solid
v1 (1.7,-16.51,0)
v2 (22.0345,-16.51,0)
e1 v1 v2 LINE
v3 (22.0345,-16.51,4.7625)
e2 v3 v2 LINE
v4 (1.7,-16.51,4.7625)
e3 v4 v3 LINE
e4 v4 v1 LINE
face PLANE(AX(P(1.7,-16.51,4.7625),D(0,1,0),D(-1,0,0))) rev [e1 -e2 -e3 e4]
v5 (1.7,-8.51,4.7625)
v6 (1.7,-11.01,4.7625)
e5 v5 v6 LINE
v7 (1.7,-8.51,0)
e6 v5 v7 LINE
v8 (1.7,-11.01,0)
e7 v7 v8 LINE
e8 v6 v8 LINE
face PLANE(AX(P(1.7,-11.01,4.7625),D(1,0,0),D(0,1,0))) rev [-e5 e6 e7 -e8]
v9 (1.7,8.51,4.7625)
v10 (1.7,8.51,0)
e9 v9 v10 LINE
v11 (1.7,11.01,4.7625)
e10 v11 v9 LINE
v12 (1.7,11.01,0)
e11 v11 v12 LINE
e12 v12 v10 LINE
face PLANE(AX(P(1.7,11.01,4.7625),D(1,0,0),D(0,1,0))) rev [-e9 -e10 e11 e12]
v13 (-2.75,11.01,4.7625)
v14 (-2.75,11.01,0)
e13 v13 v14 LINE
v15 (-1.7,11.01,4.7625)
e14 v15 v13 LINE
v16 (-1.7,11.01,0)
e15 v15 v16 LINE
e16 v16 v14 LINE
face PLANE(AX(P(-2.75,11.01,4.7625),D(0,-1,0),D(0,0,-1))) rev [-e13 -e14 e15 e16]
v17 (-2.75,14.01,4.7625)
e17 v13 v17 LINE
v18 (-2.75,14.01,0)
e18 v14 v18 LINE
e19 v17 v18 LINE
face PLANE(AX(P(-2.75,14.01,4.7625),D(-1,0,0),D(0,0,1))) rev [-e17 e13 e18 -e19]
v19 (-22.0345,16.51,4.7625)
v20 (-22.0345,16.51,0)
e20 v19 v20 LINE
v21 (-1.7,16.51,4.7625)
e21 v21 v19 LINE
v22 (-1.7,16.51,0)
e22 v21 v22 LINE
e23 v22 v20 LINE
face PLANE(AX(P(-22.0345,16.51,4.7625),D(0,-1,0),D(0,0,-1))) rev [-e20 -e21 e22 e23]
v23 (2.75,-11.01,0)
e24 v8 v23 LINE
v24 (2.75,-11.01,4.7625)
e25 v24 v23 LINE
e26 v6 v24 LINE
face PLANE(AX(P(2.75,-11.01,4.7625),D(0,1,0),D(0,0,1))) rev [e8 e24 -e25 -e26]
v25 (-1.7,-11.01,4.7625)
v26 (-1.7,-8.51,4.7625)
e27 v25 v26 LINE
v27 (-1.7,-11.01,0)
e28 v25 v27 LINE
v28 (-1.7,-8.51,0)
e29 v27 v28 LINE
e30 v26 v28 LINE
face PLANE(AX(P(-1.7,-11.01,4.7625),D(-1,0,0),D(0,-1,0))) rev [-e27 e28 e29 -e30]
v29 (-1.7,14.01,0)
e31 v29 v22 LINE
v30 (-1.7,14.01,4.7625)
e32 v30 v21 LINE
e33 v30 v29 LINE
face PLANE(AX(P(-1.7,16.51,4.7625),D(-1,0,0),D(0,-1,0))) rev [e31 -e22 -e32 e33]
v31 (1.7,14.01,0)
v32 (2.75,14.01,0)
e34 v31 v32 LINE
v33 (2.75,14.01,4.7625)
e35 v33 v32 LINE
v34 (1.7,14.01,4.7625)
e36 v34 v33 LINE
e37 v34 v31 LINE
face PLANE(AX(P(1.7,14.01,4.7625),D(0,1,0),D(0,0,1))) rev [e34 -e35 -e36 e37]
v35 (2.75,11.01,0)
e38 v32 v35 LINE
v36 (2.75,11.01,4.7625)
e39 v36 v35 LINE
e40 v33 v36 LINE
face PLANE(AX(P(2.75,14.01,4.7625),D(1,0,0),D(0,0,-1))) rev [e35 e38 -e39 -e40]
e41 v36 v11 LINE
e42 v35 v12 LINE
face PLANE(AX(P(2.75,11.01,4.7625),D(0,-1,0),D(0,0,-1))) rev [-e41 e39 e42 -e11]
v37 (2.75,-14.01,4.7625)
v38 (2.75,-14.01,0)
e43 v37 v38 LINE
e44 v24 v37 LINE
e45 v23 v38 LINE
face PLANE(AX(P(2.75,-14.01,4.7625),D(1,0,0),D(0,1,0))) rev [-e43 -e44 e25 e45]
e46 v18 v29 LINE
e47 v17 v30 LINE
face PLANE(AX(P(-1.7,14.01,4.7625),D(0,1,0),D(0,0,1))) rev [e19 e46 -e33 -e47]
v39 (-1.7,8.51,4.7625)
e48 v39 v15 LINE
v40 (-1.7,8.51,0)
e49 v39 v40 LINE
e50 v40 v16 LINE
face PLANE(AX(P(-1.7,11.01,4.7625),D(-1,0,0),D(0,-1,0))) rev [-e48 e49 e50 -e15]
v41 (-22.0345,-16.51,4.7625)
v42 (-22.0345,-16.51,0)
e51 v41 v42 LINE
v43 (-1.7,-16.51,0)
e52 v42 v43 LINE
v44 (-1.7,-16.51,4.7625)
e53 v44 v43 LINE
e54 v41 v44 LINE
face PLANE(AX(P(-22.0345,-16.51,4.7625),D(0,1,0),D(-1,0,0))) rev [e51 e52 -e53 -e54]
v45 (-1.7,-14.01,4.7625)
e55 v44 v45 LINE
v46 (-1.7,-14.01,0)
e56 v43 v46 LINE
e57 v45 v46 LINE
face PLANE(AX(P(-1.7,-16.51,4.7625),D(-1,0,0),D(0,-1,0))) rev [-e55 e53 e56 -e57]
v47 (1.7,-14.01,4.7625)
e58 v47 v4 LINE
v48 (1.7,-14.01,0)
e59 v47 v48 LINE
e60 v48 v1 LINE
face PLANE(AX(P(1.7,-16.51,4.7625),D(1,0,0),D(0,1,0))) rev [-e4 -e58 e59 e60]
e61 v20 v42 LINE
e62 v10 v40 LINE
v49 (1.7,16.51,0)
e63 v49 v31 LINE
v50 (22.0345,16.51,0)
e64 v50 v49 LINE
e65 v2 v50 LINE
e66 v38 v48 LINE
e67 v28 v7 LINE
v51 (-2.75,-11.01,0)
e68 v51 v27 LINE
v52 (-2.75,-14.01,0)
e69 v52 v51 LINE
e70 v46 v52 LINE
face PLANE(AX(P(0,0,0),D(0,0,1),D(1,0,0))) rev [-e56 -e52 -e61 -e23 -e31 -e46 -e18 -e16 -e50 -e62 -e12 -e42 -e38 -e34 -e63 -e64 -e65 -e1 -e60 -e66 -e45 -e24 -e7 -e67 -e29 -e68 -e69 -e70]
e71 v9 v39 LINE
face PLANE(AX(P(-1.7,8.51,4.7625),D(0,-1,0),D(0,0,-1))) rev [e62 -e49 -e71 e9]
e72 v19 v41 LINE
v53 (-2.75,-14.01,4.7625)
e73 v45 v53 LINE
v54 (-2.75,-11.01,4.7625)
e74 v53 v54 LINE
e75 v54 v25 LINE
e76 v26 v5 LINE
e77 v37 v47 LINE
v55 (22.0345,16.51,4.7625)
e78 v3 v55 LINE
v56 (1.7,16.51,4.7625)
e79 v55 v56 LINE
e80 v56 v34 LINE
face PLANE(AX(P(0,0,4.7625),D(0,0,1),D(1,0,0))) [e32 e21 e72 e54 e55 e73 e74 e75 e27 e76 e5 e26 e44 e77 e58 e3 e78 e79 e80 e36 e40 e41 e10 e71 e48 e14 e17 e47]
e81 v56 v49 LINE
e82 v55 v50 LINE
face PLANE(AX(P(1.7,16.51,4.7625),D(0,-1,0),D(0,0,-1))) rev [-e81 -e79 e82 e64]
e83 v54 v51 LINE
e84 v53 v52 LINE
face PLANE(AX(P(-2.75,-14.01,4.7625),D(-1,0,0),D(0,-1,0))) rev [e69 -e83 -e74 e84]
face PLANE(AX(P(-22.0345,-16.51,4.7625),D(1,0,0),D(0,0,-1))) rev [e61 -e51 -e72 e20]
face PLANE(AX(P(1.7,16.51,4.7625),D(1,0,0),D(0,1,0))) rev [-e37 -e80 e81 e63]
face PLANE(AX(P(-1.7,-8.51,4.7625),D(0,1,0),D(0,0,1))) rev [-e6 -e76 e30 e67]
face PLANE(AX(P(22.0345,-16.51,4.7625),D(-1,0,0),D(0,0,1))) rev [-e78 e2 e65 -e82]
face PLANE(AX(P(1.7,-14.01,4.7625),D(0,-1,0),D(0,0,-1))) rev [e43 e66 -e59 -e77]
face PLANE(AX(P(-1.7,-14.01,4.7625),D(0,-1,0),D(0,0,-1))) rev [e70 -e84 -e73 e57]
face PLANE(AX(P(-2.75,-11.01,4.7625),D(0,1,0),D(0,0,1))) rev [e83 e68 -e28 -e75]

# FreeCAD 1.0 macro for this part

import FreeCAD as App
import Part
import Sketcher

V = App.Vector


def add_polygon(sketch, points):
    """Adds a closed chain of lines whose ends are joined by coincident constraints."""
    first, n = sketch.GeometryCount, len(points)
    for a, b in zip(points, points[1:] + points[:1]):
        sketch.addGeometry(Part.LineSegment(App.Vector(*a, 0), App.Vector(*b, 0)), False)
    for i in range(n):
        sketch.addConstraint(Sketcher.Constraint("Coincident", first + i, 2, first + (i + 1) % n, 1))

doc = App.newDocument("Part")
body = doc.addObject("PartDesign::Body", "Body")

# Sketch on XY plane
sketch1 = doc.addObject("Sketcher::SketchObject", "Sketch")
body.addObject(sketch1)
sketch1.AttachmentSupport = (doc.XY_Plane, [""])
sketch1.MapMode = "FlatFace"
add_polygon(sketch1, [(-22, -16.5), (-1.7, -16.5), (-1.7, -14), (-2.8, -14), (-2.8, -11), (-1.7, -11), (-1.7, -8.5), (1.7, -8.5), (1.7, -11), (2.8, -11), (2.8, -14), (1.7, -14), (1.7, -16.5), (22, -16.5), (22, 16.5), (1.7, 16.5), (1.7, 14), (2.8, 14), (2.8, 11), (1.7, 11), (1.7, 8.5), (-1.7, 8.5), (-1.7, 11), (-2.8, 11), (-2.8, 14), (-1.7, 14), (-1.7, 16.5), (-22, 16.5)])  # lines 0-27
sketch1.addConstraint(Sketcher.Constraint("Horizontal", 0))
sketch1.addConstraint(Sketcher.Constraint("Vertical", 1))
sketch1.addConstraint(Sketcher.Constraint("Horizontal", 2))
sketch1.addConstraint(Sketcher.Constraint("Vertical", 3))
sketch1.addConstraint(Sketcher.Constraint("Horizontal", 4))
sketch1.addConstraint(Sketcher.Constraint("Vertical", 5))
sketch1.addConstraint(Sketcher.Constraint("Horizontal", 6))
sketch1.addConstraint(Sketcher.Constraint("Vertical", 7))
sketch1.addConstraint(Sketcher.Constraint("Horizontal", 8))
sketch1.addConstraint(Sketcher.Constraint("Vertical", 9))
sketch1.addConstraint(Sketcher.Constraint("Horizontal", 10))
sketch1.addConstraint(Sketcher.Constraint("Vertical", 11))
sketch1.addConstraint(Sketcher.Constraint("Horizontal", 12))
sketch1.addConstraint(Sketcher.Constraint("Vertical", 13))
sketch1.addConstraint(Sketcher.Constraint("Horizontal", 14))
sketch1.addConstraint(Sketcher.Constraint("Vertical", 15))
sketch1.addConstraint(Sketcher.Constraint("Horizontal", 16))
sketch1.addConstraint(Sketcher.Constraint("Vertical", 17))
sketch1.addConstraint(Sketcher.Constraint("Horizontal", 18))
sketch1.addConstraint(Sketcher.Constraint("Vertical", 19))
sketch1.addConstraint(Sketcher.Constraint("Horizontal", 20))
sketch1.addConstraint(Sketcher.Constraint("Vertical", 21))
sketch1.addConstraint(Sketcher.Constraint("Horizontal", 22))
sketch1.addConstraint(Sketcher.Constraint("Vertical", 23))
sketch1.addConstraint(Sketcher.Constraint("Horizontal", 24))
sketch1.addConstraint(Sketcher.Constraint("Vertical", 25))
sketch1.addConstraint(Sketcher.Constraint("Horizontal", 26))
sketch1.addConstraint(Sketcher.Constraint("Vertical", 27))
sketch1.addConstraint(Sketcher.Constraint("Symmetric", 0, 2, 14, 2, -1, 1))
sketch1.addConstraint(Sketcher.Constraint("Symmetric", 2, 2, 16, 2, -1, 1))
sketch1.addConstraint(Sketcher.Constraint("Symmetric", 4, 2, 18, 2, -1, 1))
sketch1.addConstraint(Sketcher.Constraint("Symmetric", 6, 2, 20, 2, -1, 1))
sketch1.addConstraint(Sketcher.Constraint("Symmetric", 8, 2, 22, 2, -1, 1))
sketch1.addConstraint(Sketcher.Constraint("Symmetric", 10, 2, 24, 2, -1, 1))
sketch1.addConstraint(Sketcher.Constraint("Symmetric", 12, 2, 26, 2, -1, 1))
sketch1.addConstraint(Sketcher.Constraint("Symmetric", 4, 2, 7, 2, -2))
sketch1.addConstraint(Sketcher.Constraint("Symmetric", 2, 2, 9, 2, -2))
sketch1.addConstraint(Sketcher.Constraint("Symmetric", 0, 2, 11, 2, -2))
sketch1.addConstraint(Sketcher.Constraint("Vertical", 1, 2, 4, 2))
sketch1.addConstraint(Sketcher.Constraint("Equal", 1, 5))
sketch1.addConstraint(Sketcher.Constraint("DistanceY", 3, 1, 3, 2, 3.0))
sketch1.addConstraint(Sketcher.Constraint("DistanceX", 6, 1, 6, 2, 3.4))
sketch1.addConstraint(Sketcher.Constraint("DistanceY", 1, 1, 1, 2, 2.5))
sketch1.addConstraint(Sketcher.Constraint("DistanceX", 2, 2, 2, 1, 1.05))
sketch1.addConstraint(Sketcher.Constraint("DistanceY", 13, 1, 13, 2, 33.02))
sketch1.addConstraint(Sketcher.Constraint("DistanceX", 0, 1, 0, 2, 20.3345))
pad1 = doc.addObject("PartDesign::Pad", "Pad")
body.addObject(pad1)
pad1.Profile = sketch1
pad1.Length = 4.7625

doc.recompute()
